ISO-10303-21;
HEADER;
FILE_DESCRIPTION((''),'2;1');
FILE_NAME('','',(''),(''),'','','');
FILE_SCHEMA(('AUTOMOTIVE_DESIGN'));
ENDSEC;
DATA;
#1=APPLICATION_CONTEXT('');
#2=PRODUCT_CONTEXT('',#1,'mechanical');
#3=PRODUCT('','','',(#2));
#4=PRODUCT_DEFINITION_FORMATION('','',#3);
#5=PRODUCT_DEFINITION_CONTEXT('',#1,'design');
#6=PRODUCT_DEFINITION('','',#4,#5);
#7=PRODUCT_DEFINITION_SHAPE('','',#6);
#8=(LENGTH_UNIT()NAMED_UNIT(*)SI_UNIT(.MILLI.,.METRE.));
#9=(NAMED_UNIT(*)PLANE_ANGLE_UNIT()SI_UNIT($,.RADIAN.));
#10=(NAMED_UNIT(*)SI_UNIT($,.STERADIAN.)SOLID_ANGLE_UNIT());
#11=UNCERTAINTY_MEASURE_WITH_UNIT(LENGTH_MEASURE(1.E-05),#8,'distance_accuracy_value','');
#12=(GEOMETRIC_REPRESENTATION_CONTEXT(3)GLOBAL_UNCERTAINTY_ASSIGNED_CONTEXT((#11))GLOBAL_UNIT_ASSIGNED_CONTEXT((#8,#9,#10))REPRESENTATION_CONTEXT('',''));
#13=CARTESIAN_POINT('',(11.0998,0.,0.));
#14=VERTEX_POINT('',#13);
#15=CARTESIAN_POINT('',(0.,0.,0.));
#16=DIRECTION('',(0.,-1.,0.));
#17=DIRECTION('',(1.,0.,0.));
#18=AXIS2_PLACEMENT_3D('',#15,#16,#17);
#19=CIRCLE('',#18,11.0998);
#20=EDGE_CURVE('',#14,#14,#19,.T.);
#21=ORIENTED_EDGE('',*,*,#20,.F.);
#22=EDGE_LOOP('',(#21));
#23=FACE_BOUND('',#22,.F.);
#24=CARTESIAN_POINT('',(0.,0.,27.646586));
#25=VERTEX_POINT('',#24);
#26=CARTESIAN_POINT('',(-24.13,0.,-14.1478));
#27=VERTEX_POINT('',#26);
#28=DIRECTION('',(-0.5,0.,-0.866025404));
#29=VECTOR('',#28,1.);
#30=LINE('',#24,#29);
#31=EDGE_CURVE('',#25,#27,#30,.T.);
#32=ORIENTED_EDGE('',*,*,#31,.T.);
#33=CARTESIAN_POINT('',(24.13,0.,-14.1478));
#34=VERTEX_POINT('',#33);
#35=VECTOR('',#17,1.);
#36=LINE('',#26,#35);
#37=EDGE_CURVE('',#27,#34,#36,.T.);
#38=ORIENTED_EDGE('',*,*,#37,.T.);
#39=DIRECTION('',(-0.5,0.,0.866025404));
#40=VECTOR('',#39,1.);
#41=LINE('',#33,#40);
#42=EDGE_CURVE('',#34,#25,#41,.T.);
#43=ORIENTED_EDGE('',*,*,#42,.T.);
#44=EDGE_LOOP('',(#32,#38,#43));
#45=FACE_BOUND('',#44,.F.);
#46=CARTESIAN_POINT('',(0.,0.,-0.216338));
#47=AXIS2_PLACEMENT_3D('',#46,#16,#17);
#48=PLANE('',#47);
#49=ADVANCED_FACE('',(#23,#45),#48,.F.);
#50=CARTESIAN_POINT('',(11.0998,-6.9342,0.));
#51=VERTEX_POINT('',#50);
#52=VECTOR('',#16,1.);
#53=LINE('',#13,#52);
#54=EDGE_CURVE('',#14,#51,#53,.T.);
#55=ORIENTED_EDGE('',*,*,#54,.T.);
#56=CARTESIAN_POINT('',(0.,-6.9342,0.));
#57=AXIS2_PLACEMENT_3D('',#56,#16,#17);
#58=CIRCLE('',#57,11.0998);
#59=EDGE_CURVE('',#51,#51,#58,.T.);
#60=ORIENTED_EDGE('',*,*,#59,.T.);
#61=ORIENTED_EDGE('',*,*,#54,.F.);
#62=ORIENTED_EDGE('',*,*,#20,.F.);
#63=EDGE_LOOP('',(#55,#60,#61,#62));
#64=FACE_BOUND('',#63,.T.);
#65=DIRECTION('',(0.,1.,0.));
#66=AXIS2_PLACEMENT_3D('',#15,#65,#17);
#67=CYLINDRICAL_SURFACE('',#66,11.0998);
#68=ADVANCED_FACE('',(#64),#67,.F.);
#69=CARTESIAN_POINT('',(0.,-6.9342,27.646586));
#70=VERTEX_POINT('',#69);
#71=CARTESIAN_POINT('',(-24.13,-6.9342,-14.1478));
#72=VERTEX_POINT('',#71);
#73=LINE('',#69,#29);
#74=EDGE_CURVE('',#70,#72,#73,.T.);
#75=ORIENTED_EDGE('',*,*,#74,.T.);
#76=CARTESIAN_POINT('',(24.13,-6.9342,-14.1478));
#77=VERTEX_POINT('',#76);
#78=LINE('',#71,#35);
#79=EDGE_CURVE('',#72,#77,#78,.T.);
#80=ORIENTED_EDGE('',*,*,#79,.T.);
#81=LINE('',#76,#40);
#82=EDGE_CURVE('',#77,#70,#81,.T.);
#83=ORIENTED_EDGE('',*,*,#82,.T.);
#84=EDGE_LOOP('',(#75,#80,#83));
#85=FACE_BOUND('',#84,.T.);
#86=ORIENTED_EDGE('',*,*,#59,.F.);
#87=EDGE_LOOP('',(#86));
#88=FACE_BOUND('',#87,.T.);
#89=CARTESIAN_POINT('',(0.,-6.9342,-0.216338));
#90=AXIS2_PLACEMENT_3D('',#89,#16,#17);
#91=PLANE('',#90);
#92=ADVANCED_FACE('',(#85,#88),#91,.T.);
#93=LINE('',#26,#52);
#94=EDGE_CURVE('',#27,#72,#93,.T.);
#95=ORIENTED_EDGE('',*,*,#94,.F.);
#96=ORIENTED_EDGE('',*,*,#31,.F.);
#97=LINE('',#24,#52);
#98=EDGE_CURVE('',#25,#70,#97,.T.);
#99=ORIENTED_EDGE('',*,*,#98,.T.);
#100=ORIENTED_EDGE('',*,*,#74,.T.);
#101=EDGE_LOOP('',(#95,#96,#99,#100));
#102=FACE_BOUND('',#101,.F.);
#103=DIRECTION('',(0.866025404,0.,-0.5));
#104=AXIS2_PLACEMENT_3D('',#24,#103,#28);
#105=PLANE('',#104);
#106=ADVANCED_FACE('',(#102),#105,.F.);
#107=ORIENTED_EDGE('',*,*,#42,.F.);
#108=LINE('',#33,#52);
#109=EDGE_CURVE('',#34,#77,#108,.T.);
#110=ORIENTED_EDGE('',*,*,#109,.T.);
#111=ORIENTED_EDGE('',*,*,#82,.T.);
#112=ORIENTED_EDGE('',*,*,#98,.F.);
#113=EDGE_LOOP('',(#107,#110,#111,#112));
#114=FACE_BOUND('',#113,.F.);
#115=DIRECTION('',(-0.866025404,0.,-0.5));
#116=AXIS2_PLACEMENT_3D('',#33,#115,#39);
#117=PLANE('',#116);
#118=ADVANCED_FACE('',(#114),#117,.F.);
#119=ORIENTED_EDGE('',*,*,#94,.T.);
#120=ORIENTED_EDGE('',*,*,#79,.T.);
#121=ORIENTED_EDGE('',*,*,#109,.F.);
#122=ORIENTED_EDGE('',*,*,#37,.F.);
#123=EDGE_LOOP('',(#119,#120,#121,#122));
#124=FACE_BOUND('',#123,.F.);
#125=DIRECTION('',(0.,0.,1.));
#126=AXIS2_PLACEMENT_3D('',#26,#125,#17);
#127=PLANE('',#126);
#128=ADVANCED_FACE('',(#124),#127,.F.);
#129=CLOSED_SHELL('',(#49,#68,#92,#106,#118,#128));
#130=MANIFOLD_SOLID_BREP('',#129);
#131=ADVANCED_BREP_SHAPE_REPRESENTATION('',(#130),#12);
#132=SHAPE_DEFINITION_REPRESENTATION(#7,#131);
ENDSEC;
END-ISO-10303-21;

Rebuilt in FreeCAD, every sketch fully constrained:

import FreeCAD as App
import Part
import Sketcher

V = App.Vector
Q = App.Units.Quantity

doc = App.newDocument("Part")
body = doc.addObject("PartDesign::Body", "Body")

# Sketch on XZ plane
sketch1 = doc.addObject("Sketcher::SketchObject", "Sketch")
body.addObject(sketch1)
sketch1.AttachmentSupport = (doc.XZ_Plane, [""])
sketch1.MapMode = "FlatFace"
sketch1.addGeometry(Part.LineSegment(V(24, -14, 0), V(0, 28, 0)), False)
sketch1.addGeometry(Part.LineSegment(V(0, 28, 0), V(-24, -14, 0)), False)
sketch1.addGeometry(Part.LineSegment(V(-24, -14, 0), V(24, -14, 0)), False)
sketch1.addGeometry(Part.Circle(V(0, 0, 0), V(0, 0, 1), 11), False)
sketch1.addConstraint(Sketcher.Constraint("Coincident", 0, 2, 1, 1))
sketch1.addConstraint(Sketcher.Constraint("Coincident", 1, 2, 2, 1))
sketch1.addConstraint(Sketcher.Constraint("Coincident", 2, 2, 0, 1))
sketch1.addConstraint(Sketcher.Constraint("Horizontal", 2))
sketch1.addConstraint(Sketcher.Constraint("Coincident", 3, 3, -1, 1))
sketch1.addConstraint(Sketcher.Constraint("PointOnObject", 0, 2, -2))
sketch1.addConstraint(Sketcher.Constraint("Equal", 0, 1))
sketch1.addConstraint(Sketcher.Constraint("Diameter", 3, Q("0.874 in")))
sketch1.addConstraint(Sketcher.Constraint("DistanceX", 2, 1, 2, 2, Q("1.9 in")))
sketch1.addConstraint(Sketcher.Constraint("Angle", 0, Q("120 deg")))
sketch1.addConstraint(Sketcher.Constraint("DistanceY", 1, 2, -1, 1, Q("0.557 in")))
pad1 = doc.addObject("PartDesign::Pad", "Pad")
body.addObject(pad1)
pad1.Profile = sketch1
pad1.Length = Q("0.273 in")

doc.recompute()
